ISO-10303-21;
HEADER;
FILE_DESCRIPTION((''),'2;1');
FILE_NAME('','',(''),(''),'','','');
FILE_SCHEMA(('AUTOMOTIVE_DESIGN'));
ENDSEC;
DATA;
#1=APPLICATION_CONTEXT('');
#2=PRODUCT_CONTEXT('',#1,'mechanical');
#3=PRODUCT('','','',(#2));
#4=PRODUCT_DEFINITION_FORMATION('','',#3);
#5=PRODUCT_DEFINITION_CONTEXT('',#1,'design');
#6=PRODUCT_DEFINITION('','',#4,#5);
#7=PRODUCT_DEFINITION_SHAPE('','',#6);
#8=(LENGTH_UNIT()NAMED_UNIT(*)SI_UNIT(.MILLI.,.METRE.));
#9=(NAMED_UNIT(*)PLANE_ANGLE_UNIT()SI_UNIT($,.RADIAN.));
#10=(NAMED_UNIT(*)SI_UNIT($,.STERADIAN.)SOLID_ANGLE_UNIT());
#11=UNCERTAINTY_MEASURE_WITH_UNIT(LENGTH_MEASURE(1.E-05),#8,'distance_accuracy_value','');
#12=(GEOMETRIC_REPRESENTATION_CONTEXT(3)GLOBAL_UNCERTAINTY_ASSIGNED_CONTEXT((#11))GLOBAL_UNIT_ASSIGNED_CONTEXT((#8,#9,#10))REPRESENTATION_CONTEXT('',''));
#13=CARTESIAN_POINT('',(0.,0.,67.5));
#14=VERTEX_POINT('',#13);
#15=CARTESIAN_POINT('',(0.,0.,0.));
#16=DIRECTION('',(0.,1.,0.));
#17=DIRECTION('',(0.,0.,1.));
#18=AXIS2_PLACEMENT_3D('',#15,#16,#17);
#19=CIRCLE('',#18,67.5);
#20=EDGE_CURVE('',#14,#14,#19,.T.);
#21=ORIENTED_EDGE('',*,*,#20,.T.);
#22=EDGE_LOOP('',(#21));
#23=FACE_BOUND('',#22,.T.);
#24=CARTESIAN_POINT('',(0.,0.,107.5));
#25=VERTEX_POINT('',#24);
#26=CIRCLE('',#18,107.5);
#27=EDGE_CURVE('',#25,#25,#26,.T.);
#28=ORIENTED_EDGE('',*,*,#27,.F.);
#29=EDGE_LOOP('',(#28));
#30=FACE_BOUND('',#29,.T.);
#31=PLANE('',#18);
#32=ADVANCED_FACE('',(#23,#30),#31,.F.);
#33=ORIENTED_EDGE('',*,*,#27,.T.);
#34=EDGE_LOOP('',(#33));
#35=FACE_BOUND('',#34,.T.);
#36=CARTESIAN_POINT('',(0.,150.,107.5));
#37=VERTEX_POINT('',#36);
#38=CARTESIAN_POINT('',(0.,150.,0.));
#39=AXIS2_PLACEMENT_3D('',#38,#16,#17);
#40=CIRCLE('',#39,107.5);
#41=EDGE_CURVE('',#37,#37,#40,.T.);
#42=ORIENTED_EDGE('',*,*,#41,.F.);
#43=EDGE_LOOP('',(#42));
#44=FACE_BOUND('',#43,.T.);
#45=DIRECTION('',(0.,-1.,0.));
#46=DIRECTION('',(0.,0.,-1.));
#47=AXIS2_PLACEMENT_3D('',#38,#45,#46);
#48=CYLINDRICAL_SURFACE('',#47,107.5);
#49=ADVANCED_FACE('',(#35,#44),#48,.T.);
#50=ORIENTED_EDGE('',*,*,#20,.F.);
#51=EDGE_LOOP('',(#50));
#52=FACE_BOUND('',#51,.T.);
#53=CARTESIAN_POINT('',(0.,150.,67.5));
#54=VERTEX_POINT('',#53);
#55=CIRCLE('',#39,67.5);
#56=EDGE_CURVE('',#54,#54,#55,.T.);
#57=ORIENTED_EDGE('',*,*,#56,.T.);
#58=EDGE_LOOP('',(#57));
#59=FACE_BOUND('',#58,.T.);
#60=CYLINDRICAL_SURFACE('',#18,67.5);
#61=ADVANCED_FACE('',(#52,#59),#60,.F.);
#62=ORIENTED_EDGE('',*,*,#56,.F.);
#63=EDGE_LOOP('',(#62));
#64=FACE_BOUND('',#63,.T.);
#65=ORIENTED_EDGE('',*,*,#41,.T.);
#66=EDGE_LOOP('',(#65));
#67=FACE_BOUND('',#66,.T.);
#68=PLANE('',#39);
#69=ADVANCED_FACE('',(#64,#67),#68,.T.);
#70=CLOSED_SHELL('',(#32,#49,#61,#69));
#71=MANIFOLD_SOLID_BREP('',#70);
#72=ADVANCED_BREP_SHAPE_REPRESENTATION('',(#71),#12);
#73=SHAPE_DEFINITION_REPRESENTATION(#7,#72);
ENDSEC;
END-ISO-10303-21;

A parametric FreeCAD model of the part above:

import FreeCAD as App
import Part
import Sketcher

V = App.Vector

doc = App.newDocument("Part")
params = doc.addObject("Spreadsheet::Sheet", "Params")
for row, (alias, value) in enumerate([
    ("sketch1_diameter", "215 mm"),
    ("pad1_length", "150 mm"),
    ("sketch2_diameter", "135 mm"),
], start=1):
    params.set(f"A{row}", alias)
    params.set(f"B{row}", "=" + value)
    params.setAlias(f"B{row}", alias)

body = doc.addObject("PartDesign::Body", "Body")

sketch1 = body.newObject("Sketcher::SketchObject", "Sketch")
sketch1.AttachmentSupport = (doc.getObject("XZ_Plane"), [""])
sketch1.MapMode = "FlatFace"
sketch1.addGeometry(Part.Circle(V(0, 0, 0), V(0, 0, 1), 107.5), False)
sketch1.addConstraint(Sketcher.Constraint("Coincident", 0, 3, -1, 1))
sketch1.addConstraint(Sketcher.Constraint("Diameter", 0, 215.0))
sketch1.setExpression("Constraints[1]", "Params.sketch1_diameter")
pad1 = body.newObject("PartDesign::Pad", "Pad")
pad1.Profile = sketch1
pad1.setExpression("Length", "Params.pad1_length")
pad1.Reversed = True

sketch2 = body.newObject("Sketcher::SketchObject", "Sketch001")
sketch2.AttachmentSupport = (doc.getObject("XZ_Plane"), [""])
sketch2.MapMode = "FlatFace"
sketch2.AttachmentOffset = App.Placement(V(0, 0, -150), App.Rotation())
sketch2.addGeometry(Part.Circle(V(0, 0, 0), V(0, 0, 1), 67.5), False)
sketch2.addConstraint(Sketcher.Constraint("Coincident", 0, 3, -1, 1))
sketch2.addConstraint(Sketcher.Constraint("Diameter", 0, 135.0))
sketch2.setExpression("Constraints[1]", "Params.sketch2_diameter")
pocket1 = body.newObject("PartDesign::Pocket", "Pocket")
pocket1.Profile = sketch2
pocket1.Type = "ThroughAll"
pocket1.Reversed = True

doc.recompute()
